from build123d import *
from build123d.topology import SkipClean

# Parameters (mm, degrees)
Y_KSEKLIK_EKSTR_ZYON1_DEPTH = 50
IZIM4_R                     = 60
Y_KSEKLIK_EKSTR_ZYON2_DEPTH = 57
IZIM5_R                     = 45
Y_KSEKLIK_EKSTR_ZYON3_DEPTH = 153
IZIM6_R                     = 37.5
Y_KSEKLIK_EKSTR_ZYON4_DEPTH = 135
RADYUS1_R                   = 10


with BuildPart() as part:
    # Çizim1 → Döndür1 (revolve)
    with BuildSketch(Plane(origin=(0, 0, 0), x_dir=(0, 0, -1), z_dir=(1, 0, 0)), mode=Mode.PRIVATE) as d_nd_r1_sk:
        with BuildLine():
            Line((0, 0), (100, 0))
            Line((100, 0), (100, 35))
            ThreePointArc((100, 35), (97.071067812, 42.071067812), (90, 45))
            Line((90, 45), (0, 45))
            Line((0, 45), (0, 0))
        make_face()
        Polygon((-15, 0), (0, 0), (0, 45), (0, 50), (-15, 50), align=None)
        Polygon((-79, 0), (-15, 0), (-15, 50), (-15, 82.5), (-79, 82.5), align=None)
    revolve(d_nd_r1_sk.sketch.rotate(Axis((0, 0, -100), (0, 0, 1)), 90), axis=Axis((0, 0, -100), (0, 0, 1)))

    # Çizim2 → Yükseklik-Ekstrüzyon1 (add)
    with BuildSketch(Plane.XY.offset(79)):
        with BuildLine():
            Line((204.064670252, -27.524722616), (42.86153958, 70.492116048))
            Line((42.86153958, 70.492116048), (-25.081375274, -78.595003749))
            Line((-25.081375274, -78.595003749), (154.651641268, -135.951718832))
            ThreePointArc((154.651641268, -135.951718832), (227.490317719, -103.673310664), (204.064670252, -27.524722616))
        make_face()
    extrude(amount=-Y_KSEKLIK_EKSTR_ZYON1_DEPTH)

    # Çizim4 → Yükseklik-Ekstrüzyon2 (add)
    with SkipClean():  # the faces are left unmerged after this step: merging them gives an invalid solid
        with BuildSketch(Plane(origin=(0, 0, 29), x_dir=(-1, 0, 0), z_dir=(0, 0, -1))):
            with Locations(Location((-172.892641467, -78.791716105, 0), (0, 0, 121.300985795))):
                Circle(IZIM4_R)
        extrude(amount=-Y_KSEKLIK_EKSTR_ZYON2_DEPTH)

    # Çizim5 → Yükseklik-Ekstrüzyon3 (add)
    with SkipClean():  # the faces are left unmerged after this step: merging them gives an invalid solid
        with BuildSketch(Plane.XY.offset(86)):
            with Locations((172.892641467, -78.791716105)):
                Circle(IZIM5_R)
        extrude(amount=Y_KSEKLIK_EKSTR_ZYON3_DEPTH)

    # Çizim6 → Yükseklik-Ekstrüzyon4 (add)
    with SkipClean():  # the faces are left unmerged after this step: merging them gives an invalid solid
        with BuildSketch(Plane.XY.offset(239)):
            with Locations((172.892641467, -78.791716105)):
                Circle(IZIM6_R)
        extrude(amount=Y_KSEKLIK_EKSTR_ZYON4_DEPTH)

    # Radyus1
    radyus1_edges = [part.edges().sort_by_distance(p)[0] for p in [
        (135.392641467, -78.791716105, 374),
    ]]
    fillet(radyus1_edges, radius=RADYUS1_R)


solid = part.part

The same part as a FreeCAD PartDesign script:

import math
import FreeCAD as App
import Part
import Sketcher
from FreeCAD import Vector
Q = App.Units.Quantity


def edges_at(feature, points):
    """Names of the edges that pass closest to the given points."""
    edges = feature.Shape.Edges
    near = lambda p: min(range(len(edges)), key=lambda i: edges[i].distToShape(Part.Vertex(*p))[0])
    return sorted({f"Edge{near(p) + 1}" for p in points})

doc = App.newDocument("Part")
params = doc.addObject("Spreadsheet::Sheet", "Params")
for row, (alias, value) in enumerate([
    ("sketch1_radius", "10 mm"),
    ("sketch1_width", "35 mm"),
    ("sketch1_width2", "5 mm"),
    ("sketch1_height", "90 mm"),
    ("sketch1_height2", "15 mm"),
    ("revolution_angle", "360 deg"),
    ("sketch2_radius", "60 mm"),
    ("pad1_length", "50 mm"),
    ("sketch3_diameter", "120 mm"),
    ("pad2_length", "57 mm"),
    ("sketch4_diameter", "90 mm"),
    ("pad3_length", "153 mm"),
    ("sketch5_diameter", "75 mm"),
    ("pad4_length", "135 mm"),
    ("fillet_radius", "10 mm"),
], start=1):
    params.set(f"A{row}", alias)
    params.set(f"B{row}", "=" + value)
    params.setAlias(f"B{row}", alias)

body = doc.addObject("PartDesign::Body", "Body")

# Sketch on YZ plane
sketch1 = body.newObject("Sketcher::SketchObject", "Sketch")
sketch1.AttachmentSupport = (doc.getObject("YZ_Plane"), [""])
sketch1.MapMode = "FlatFace"
sketch1.addGeometry([
    Part.LineSegment(Vector(0, -100, 0), Vector(35, -100, 0)),  # 0
    Part.ArcOfCircle(Part.Circle(Vector(35, -90, 0), Vector(0, 0, 1), 10), math.radians(-90), math.radians(0)),  # 1
    Part.LineSegment(Vector(45, -90, 0), Vector(45, 0, 0)),  # 2
    Part.LineSegment(Vector(45, 0, 0), Vector(50, 0, 0)),  # 3
    Part.LineSegment(Vector(50, 0, 0), Vector(50, 15, 0)),  # 4
    Part.LineSegment(Vector(50, 15, 0), Vector(82, 15, 0)),  # 5
    Part.LineSegment(Vector(82, 15, 0), Vector(82, 79, 0)),  # 6
    Part.LineSegment(Vector(82, 79, 0), Vector(0, 79, 0)),  # 7
    Part.LineSegment(Vector(0, 79, 0), Vector(0, -100, 0)),  # 8
], False)
sketch1.addConstraint([
    Sketcher.Constraint("Tangent", 0, 2, 1, 1),
    Sketcher.Constraint("Tangent", 1, 2, 2, 1),
    Sketcher.Constraint("Coincident", 2, 2, 3, 1),
    Sketcher.Constraint("Coincident", 3, 2, 4, 1),
    Sketcher.Constraint("Coincident", 4, 2, 5, 1),
    Sketcher.Constraint("Coincident", 5, 2, 6, 1),
    Sketcher.Constraint("Coincident", 6, 2, 7, 1),
    Sketcher.Constraint("Coincident", 7, 2, 8, 1),
    Sketcher.Constraint("Coincident", 8, 2, 0, 1),
    Sketcher.Constraint("Horizontal", 0),
    Sketcher.Constraint("Vertical", 2),
    Sketcher.Constraint("Horizontal", 3),
    Sketcher.Constraint("Vertical", 4),
    Sketcher.Constraint("Horizontal", 5),
    Sketcher.Constraint("Vertical", 6),
    Sketcher.Constraint("Horizontal", 7),
    Sketcher.Constraint("Vertical", 8),
    Sketcher.Constraint("PointOnObject", 2, 2, -1),
    Sketcher.Constraint("PointOnObject", 7, 2, -2),
    Sketcher.Constraint("Radius", 1, 10.0),
    Sketcher.Constraint("DistanceX", 0, 1, 0, 2, 35.0),
    Sketcher.Constraint("DistanceX", 3, 1, 3, 2, 5.0),
    Sketcher.Constraint("DistanceY", 2, 1, 2, 2, 90.0),
    Sketcher.Constraint("DistanceY", 4, 1, 4, 2, 15.0),
    Sketcher.Constraint("DistanceY", 6, 1, 6, 2, 64.0),
    Sketcher.Constraint("DistanceX", 5, 1, 5, 2, 32.5),
])
sketch1.setExpression("Constraints[19]", "Params.sketch1_radius")
sketch1.setExpression("Constraints[20]", "Params.sketch1_width")
sketch1.setExpression("Constraints[21]", "Params.sketch1_width2")
sketch1.setExpression("Constraints[22]", "Params.sketch1_height")
sketch1.setExpression("Constraints[23]", "Params.sketch1_height2")
revolution = body.newObject("PartDesign::Revolution", "Revolution")
revolution.Profile = sketch1
revolution.ReferenceAxis = (sketch1, ["V_Axis"])
revolution.setExpression("Angle", "Params.revolution_angle")

# Sketch on XY plane
sketch2 = body.newObject("Sketcher::SketchObject", "Sketch001")
sketch2.AttachmentSupport = (doc.getObject("XY_Plane"), [""])
sketch2.MapMode = "FlatFace"
sketch2.AttachmentOffset = App.Placement(Vector(0, 0, 79), App.Rotation())
sketch2.addGeometry([
    Part.LineSegment(Vector(204, -28, 0), Vector(43, 70, 0)),
    Part.LineSegment(Vector(43, 70, 0), Vector(-25, -79, 0)),
    Part.LineSegment(Vector(-25, -79, 0), Vector(155, -136, 0)),
    Part.ArcOfCircle(Part.Circle(Vector(173, -79, 0), Vector(0, 0, 1), 60), math.radians(-108), math.radians(59)),
], False)
sketch2.addConstraint([
    Sketcher.Constraint("Coincident", 0, 2, 1, 1),
    Sketcher.Constraint("Coincident", 1, 2, 2, 1),
    Sketcher.Constraint("Tangent", 2, 2, 3, 1),
    Sketcher.Constraint("Tangent", 3, 2, 0, 1),
    Sketcher.Constraint("Equal", 0, 2),
    Sketcher.Constraint("Radius", 3, 60.0),
    Sketcher.Constraint("Angle", 1, Q("-114.5 deg")),
    Sketcher.Constraint("DistanceX", 2, 2, 3, 3, 18.241),
    Sketcher.Constraint("DistanceX", 0, 2, 3, 3, 130.031102),
    Sketcher.Constraint("DistanceX", -1, 1, 3, 3, 172.892641),
    Sketcher.Constraint("DistanceY", 2, 2, -1, 1, 135.951719),
])
sketch2.setExpression("Constraints[5]", "Params.sketch2_radius")
pad1 = body.newObject("PartDesign::Pad", "Pad")
pad1.Profile = sketch2
pad1.setExpression("Length", "Params.pad1_length")
pad1.Reversed = True

# Sketch on XY plane
sketch3 = body.newObject("Sketcher::SketchObject", "Sketch002")
sketch3.AttachmentSupport = (doc.getObject("XY_Plane"), [""])
sketch3.MapMode = "FlatFace"
sketch3.AttachmentOffset = App.Placement(Vector(0, 0, 29), App.Rotation())
sketch3.addGeometry(Part.Circle(Vector(173, -79, 0), Vector(0, 0, 1), 60), False)
sketch3.addConstraint([
    Sketcher.Constraint("Diameter", 0, 120.0),
    Sketcher.Constraint("DistanceX", -1, 1, 0, 3, 172.892641),
    Sketcher.Constraint("DistanceY", 0, 3, -1, 1, 78.791716),
])
sketch3.setExpression("Constraints[0]", "Params.sketch3_diameter")
pad2 = body.newObject("PartDesign::Pad", "Pad001")
pad2.Profile = sketch3
pad2.setExpression("Length", "Params.pad2_length")

# Sketch on XY plane
sketch4 = body.newObject("Sketcher::SketchObject", "Sketch003")
sketch4.AttachmentSupport = (doc.getObject("XY_Plane"), [""])
sketch4.MapMode = "FlatFace"
sketch4.AttachmentOffset = App.Placement(Vector(0, 0, 86), App.Rotation())
sketch4.addGeometry(Part.Circle(Vector(173, -79, 0), Vector(0, 0, 1), 45), False)
sketch4.addConstraint([
    Sketcher.Constraint("Diameter", 0, 90.0),
    Sketcher.Constraint("DistanceX", -1, 1, 0, 3, 172.892641),
    Sketcher.Constraint("DistanceY", 0, 3, -1, 1, 78.791716),
])
sketch4.setExpression("Constraints[0]", "Params.sketch4_diameter")
pad3 = body.newObject("PartDesign::Pad", "Pad002")
pad3.Profile = sketch4
pad3.setExpression("Length", "Params.pad3_length")

# Sketch on XY plane
sketch5 = body.newObject("Sketcher::SketchObject", "Sketch004")
sketch5.AttachmentSupport = (doc.getObject("XY_Plane"), [""])
sketch5.MapMode = "FlatFace"
sketch5.AttachmentOffset = App.Placement(Vector(0, 0, 239), App.Rotation())
sketch5.addGeometry(Part.Circle(Vector(173, -79, 0), Vector(0, 0, 1), 38), False)
sketch5.addConstraint([
    Sketcher.Constraint("Diameter", 0, 75.0),
    Sketcher.Constraint("DistanceX", -1, 1, 0, 3, 172.892641),
    Sketcher.Constraint("DistanceY", 0, 3, -1, 1, 78.791716),
])
sketch5.setExpression("Constraints[0]", "Params.sketch5_diameter")
pad4 = body.newObject("PartDesign::Pad", "Pad003")
pad4.Profile = sketch5
pad4.setExpression("Length", "Params.pad4_length")
doc.recompute()

fillet = body.newObject("PartDesign::Fillet", "Fillet")
fillet.Base = (pad4, edges_at(pad4, [(135.393, -78.792, 374)]))
fillet.setExpression("Radius", "Params.fillet_radius")

doc.recompute()
